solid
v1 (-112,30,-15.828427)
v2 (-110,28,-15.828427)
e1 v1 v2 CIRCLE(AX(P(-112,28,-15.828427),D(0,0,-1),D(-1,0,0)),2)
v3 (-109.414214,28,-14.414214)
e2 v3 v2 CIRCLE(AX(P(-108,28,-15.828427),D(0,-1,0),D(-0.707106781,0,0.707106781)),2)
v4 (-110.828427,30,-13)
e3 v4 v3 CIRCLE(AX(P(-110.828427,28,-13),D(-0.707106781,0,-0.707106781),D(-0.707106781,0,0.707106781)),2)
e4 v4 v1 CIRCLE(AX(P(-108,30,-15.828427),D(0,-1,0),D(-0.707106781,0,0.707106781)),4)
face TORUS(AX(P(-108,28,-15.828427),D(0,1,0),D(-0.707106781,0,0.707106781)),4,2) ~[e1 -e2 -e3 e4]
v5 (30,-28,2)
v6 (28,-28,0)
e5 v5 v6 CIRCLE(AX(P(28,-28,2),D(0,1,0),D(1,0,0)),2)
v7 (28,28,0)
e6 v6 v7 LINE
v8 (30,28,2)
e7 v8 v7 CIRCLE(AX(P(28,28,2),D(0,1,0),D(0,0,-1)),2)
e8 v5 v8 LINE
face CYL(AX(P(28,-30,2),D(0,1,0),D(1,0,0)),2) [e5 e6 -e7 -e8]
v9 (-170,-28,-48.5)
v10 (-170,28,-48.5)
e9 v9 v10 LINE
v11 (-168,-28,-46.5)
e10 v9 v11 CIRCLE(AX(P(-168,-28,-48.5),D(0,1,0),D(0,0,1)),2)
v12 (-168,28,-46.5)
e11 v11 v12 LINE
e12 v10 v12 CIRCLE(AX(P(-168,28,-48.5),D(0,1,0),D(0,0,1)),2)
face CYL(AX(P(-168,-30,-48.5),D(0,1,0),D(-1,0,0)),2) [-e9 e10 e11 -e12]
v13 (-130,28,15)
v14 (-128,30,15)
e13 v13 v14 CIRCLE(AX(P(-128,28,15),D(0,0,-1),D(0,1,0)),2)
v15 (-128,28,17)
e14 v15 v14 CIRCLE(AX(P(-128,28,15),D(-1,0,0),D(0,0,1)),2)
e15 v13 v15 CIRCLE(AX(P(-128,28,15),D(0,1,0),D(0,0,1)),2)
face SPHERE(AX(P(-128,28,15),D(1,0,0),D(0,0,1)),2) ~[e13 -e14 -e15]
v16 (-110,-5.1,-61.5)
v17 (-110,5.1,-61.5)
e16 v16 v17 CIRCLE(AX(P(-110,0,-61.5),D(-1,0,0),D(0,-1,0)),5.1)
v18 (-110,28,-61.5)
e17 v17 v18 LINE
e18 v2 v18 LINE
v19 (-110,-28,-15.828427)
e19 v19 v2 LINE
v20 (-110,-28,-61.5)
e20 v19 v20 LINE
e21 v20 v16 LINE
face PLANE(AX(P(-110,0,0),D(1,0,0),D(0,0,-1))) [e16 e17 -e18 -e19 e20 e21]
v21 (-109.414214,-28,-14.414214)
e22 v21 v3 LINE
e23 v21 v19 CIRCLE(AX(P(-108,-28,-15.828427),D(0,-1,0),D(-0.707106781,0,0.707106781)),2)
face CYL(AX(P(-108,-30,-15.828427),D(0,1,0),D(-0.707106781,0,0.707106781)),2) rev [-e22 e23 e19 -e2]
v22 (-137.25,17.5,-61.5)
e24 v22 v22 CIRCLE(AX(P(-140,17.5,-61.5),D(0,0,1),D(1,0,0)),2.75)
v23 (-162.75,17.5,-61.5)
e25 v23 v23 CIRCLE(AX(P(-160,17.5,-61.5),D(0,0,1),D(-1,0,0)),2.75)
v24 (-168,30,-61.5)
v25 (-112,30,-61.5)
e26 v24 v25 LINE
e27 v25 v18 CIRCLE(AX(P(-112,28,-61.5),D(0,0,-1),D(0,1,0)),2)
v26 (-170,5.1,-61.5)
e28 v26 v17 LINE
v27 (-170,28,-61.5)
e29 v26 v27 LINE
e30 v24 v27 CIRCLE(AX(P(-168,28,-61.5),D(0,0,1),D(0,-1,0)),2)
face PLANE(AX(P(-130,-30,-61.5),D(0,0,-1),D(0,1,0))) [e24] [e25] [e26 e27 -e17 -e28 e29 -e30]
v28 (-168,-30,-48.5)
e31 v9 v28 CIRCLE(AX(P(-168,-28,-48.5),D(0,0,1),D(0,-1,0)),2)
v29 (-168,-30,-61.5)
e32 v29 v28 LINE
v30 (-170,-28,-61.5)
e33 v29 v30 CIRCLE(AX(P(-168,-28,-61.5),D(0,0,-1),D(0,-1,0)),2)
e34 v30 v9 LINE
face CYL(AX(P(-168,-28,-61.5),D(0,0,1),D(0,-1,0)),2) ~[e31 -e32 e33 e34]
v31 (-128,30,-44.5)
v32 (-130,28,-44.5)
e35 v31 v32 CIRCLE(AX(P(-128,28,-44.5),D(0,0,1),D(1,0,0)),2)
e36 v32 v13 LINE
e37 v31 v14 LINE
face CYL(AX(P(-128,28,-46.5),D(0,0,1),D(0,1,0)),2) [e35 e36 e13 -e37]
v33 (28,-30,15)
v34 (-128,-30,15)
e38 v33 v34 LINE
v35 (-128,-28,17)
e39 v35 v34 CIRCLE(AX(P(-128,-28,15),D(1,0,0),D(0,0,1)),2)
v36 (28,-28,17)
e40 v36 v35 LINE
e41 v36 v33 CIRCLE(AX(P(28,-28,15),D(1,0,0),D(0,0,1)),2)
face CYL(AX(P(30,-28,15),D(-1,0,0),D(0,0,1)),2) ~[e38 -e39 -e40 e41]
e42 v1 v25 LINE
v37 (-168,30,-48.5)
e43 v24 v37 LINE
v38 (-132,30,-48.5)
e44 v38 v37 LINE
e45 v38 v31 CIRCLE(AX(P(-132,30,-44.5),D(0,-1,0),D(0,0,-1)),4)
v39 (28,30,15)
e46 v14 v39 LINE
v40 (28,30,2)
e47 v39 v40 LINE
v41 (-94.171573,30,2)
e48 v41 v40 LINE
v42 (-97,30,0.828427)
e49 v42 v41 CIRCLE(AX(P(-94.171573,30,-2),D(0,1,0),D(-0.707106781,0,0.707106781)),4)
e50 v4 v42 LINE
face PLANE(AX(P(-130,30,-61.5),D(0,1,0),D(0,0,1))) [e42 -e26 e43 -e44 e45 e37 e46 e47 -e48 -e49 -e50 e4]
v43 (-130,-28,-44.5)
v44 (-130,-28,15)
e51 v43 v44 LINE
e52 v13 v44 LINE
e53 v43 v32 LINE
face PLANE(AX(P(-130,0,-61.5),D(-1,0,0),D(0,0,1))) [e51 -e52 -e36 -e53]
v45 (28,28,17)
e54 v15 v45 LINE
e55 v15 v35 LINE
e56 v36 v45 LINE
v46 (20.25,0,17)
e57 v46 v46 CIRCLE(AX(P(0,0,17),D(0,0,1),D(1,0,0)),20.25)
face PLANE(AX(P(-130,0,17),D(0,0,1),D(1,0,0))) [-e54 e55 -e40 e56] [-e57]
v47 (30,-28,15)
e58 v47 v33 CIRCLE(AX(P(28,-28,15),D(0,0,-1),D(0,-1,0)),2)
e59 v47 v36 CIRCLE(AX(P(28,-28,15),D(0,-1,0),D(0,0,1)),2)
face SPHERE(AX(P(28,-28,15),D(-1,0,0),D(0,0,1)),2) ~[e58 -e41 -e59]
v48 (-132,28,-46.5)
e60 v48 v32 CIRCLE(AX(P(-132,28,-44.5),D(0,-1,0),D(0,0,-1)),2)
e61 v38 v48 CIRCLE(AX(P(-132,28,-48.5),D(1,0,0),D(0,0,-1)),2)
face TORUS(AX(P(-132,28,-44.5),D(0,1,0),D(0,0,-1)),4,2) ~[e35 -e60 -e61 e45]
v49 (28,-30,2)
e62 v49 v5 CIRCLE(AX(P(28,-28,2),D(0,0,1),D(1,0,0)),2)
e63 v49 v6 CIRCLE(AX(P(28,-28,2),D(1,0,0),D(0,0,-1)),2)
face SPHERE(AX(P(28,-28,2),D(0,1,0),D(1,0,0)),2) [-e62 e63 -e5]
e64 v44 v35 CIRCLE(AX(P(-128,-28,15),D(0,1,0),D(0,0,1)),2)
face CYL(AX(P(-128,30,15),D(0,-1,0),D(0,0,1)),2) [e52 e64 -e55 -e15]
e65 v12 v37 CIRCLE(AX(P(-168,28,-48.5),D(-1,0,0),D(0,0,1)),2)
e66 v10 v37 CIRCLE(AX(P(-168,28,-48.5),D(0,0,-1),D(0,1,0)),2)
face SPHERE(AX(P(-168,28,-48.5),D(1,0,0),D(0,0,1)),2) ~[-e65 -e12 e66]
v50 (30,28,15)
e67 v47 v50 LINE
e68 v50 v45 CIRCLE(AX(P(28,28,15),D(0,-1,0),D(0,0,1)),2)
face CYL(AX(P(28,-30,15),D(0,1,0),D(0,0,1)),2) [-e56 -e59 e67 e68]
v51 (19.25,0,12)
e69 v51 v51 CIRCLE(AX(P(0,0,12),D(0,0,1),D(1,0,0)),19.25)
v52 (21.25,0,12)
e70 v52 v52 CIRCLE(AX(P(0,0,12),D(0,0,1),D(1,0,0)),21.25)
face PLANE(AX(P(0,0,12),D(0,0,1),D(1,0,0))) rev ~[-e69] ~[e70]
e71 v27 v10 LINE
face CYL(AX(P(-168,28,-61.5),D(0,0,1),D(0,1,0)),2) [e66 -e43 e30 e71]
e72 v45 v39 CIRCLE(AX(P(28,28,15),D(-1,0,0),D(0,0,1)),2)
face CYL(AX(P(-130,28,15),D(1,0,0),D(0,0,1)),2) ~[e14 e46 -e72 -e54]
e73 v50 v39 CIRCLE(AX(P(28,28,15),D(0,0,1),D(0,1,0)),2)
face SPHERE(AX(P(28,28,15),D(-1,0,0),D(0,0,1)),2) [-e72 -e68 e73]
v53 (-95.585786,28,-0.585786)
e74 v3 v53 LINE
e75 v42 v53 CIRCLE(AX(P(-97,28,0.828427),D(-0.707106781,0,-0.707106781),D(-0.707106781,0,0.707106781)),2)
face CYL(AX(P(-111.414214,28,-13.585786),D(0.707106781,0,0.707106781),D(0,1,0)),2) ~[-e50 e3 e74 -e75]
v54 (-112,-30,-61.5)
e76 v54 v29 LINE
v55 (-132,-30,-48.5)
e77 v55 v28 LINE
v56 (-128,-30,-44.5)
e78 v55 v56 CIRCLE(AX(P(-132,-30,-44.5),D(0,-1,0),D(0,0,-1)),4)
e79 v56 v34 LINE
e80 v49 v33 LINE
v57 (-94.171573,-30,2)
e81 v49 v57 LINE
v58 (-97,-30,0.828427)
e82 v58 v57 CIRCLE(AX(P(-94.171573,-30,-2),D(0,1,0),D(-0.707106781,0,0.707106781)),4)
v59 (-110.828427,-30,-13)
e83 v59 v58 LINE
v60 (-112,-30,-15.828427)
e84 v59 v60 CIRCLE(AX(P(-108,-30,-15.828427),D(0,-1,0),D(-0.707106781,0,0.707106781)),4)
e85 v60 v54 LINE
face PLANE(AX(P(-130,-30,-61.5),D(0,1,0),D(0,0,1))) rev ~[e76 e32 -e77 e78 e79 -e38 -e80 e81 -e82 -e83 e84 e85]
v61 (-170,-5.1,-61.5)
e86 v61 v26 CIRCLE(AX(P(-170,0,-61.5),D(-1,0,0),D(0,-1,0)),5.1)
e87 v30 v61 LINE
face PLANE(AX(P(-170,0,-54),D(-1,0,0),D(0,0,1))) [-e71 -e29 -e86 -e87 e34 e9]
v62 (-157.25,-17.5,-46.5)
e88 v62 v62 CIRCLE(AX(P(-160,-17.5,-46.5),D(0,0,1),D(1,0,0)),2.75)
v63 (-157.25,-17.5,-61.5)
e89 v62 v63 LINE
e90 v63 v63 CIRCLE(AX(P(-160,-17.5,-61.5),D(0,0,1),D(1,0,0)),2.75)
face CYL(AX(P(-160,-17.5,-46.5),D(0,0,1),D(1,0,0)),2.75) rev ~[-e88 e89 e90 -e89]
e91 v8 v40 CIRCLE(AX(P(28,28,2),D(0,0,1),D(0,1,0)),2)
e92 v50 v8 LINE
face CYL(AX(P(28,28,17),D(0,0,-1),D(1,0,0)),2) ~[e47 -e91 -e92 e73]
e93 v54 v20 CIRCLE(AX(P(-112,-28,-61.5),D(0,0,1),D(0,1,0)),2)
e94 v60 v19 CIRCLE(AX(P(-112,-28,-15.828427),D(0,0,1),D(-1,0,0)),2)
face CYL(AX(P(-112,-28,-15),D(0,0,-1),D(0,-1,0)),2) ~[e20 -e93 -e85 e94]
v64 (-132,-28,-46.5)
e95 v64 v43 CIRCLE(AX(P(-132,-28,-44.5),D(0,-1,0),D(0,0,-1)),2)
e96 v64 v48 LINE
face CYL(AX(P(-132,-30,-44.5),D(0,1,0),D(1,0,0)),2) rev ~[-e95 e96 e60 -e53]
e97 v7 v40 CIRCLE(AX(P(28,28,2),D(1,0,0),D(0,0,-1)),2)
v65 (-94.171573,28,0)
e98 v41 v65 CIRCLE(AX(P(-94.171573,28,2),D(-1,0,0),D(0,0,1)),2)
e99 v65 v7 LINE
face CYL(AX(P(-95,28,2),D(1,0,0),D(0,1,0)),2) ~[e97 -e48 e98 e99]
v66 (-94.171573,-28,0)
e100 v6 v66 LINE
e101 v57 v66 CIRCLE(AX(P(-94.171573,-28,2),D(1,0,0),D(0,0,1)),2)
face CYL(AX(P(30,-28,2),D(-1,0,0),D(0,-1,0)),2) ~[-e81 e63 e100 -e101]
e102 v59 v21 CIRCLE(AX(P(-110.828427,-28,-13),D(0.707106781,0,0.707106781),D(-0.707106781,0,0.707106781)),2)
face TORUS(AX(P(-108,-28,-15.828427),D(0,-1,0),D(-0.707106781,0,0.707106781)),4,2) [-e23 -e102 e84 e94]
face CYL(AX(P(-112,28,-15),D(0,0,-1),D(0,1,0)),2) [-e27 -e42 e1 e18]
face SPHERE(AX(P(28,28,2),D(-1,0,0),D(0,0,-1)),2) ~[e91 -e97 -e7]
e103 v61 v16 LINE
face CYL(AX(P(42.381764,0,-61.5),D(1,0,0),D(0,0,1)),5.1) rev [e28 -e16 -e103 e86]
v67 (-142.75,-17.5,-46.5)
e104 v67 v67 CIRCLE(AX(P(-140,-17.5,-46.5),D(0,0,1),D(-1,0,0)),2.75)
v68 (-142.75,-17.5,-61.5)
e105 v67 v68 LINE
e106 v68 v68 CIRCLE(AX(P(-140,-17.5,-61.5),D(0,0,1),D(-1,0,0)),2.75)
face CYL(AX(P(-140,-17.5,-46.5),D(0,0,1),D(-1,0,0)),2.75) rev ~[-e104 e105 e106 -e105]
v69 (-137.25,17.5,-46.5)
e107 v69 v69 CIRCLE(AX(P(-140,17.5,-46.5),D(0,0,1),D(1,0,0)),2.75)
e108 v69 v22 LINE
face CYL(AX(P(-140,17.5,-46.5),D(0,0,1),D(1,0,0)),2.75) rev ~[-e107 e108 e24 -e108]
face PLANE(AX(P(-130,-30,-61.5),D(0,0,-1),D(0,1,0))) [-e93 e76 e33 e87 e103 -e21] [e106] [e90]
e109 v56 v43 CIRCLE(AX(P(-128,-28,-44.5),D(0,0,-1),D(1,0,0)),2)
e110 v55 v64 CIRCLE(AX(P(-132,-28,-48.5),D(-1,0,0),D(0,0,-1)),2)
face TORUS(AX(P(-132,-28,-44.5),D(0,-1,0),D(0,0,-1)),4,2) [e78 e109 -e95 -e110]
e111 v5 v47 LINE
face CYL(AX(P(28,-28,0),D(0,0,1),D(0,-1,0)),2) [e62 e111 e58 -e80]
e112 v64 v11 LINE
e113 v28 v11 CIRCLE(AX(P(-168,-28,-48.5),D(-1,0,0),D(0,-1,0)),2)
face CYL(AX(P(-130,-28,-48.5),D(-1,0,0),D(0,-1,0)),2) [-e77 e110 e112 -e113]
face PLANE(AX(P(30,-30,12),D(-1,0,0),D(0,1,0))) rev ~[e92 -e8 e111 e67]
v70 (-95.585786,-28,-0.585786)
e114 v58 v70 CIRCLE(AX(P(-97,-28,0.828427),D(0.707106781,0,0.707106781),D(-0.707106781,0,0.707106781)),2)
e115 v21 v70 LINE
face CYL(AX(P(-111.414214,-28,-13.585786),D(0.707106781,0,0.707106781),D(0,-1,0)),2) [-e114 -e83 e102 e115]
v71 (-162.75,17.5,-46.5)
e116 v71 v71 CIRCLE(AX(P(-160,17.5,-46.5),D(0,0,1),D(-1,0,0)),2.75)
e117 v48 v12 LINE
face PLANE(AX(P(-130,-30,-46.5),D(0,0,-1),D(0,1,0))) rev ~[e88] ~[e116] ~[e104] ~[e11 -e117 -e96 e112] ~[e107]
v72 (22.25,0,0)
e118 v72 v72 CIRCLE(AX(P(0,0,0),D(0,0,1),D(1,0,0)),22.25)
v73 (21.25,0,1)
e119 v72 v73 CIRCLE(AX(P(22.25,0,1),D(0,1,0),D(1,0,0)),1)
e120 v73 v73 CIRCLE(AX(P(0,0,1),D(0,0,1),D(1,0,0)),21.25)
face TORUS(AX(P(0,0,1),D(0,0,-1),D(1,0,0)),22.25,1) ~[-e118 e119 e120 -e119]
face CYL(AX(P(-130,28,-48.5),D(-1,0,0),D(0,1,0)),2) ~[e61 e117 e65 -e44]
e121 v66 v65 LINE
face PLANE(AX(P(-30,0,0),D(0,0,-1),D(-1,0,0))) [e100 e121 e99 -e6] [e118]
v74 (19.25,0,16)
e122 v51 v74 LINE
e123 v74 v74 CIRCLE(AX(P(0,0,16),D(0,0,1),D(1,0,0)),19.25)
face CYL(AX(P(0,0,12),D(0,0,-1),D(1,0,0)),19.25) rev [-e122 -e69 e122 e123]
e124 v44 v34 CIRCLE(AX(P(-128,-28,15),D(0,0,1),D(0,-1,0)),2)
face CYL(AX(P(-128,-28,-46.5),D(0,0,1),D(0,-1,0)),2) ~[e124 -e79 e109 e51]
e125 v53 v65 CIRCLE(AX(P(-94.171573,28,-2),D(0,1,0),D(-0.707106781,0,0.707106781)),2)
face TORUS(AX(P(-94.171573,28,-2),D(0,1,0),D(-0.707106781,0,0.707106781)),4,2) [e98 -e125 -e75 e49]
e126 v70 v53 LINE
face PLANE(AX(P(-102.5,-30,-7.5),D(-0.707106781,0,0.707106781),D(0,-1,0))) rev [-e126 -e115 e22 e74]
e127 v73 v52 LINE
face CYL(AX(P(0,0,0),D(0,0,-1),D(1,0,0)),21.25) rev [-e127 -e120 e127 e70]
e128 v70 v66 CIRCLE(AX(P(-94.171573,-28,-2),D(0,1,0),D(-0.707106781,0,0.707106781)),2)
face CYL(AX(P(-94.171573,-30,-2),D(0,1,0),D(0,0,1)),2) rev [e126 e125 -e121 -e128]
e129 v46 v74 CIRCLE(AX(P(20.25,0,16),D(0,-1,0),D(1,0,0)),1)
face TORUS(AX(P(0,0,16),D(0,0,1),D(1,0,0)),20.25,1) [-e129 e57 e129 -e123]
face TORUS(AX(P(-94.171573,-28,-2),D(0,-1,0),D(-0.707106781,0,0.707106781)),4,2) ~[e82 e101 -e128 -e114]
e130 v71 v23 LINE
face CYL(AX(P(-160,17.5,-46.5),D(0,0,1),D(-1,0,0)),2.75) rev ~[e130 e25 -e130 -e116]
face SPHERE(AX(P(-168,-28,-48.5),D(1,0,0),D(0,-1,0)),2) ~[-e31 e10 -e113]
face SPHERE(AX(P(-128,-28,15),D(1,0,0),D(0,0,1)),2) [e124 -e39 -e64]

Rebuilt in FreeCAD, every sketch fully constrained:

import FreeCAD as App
import Part
import Sketcher
Q = App.Units.Quantity


def edges_at(feature, points):
    """Names of the edges that pass closest to the given points."""
    edges = feature.Shape.Edges
    near = lambda p: min(range(len(edges)), key=lambda i: edges[i].distToShape(Part.Vertex(*p))[0])
    return sorted({f"Edge{near(p) + 1}" for p in points})

doc = App.newDocument("Part")
body = doc.addObject("PartDesign::Body", "Body")

sketch1 = doc.addObject("Sketcher::SketchObject", "Sketch")
body.addObject(sketch1)
sketch1.AttachmentSupport = (doc.XY_Plane, [""])
sketch1.MapMode = "FlatFace"
sketch1.addGeometry([
    Part.LineSegment(App.Vector(-30, 30, 0), App.Vector(-30, -30, 0)),
    Part.LineSegment(App.Vector(-30, -30, 0), App.Vector(30, -30, 0)),
    Part.LineSegment(App.Vector(30, -30, 0), App.Vector(30, 30, 0)),
    Part.LineSegment(App.Vector(30, 30, 0), App.Vector(-30, 30, 0)),
    Part.Circle(App.Vector(0, 0, 0), App.Vector(0, 0, 1), 21),
], False)
sketch1.addConstraint([
    Sketcher.Constraint("Coincident", 0, 2, 1, 1),
    Sketcher.Constraint("Coincident", 1, 2, 2, 1),
    Sketcher.Constraint("Coincident", 2, 2, 3, 1),
    Sketcher.Constraint("Coincident", 3, 2, 0, 1),
    Sketcher.Constraint("Vertical", 0),
    Sketcher.Constraint("Horizontal", 1),
    Sketcher.Constraint("Vertical", 2),
    Sketcher.Constraint("Horizontal", 3),
    Sketcher.Constraint("Coincident", 4, 3, -1, 1),
    Sketcher.Constraint("Symmetric", 0, 2, 2, 2, -1, 1),
    Sketcher.Constraint("Equal", 3, 0),
    Sketcher.Constraint("Diameter", 4, Q("42.5 mm")),
    Sketcher.Constraint("DistanceX", 1, 1, 1, 2, Q("60 mm")),
])
pad1 = doc.addObject("PartDesign::Pad", "Pad")
body.addObject(pad1)
pad1.Profile = sketch1
pad1.Length = 12

sketch2 = doc.addObject("Sketcher::SketchObject", "Sketch001")
body.addObject(sketch2)
sketch2.AttachmentSupport = (doc.XY_Plane, [""])
sketch2.MapMode = "FlatFace"
sketch2.AttachmentOffset = App.Placement(App.Vector(0, 0, 12), App.Rotation())
sketch2.addGeometry([
    Part.LineSegment(App.Vector(-30, 30, 0), App.Vector(-30, -30, 0)),
    Part.LineSegment(App.Vector(-30, -30, 0), App.Vector(30, -30, 0)),
    Part.LineSegment(App.Vector(30, -30, 0), App.Vector(30, 30, 0)),
    Part.LineSegment(App.Vector(30, 30, 0), App.Vector(-30, 30, 0)),
    Part.Circle(App.Vector(0, 0, 0), App.Vector(0, 0, 1), 19),
], False)
sketch2.addConstraint([
    Sketcher.Constraint("Coincident", 0, 2, 1, 1),
    Sketcher.Constraint("Coincident", 1, 2, 2, 1),
    Sketcher.Constraint("Coincident", 2, 2, 3, 1),
    Sketcher.Constraint("Coincident", 3, 2, 0, 1),
    Sketcher.Constraint("Vertical", 0),
    Sketcher.Constraint("Horizontal", 1),
    Sketcher.Constraint("Vertical", 2),
    Sketcher.Constraint("Horizontal", 3),
    Sketcher.Constraint("Coincident", 4, 3, -1, 1),
    Sketcher.Constraint("Symmetric", 0, 2, 2, 2, -1, 1),
    Sketcher.Constraint("Equal", 3, 0),
    Sketcher.Constraint("Diameter", 4, Q("38.5 mm")),
    Sketcher.Constraint("DistanceX", 1, 1, 1, 2, Q("60 mm")),
])
pad2 = doc.addObject("PartDesign::Pad", "Pad001")
body.addObject(pad2)
pad2.Profile = sketch2
pad2.Length = 5

sketch3 = doc.addObject("Sketcher::SketchObject", "Sketch002")
body.addObject(sketch3)
sketch3.AttachmentSupport = (doc.XZ_Plane, [""])
sketch3.MapMode = "FlatFace"
sketch3.addGeometry([
    Part.LineSegment(App.Vector(-30, 0, 0), App.Vector(-110, 0, 0)),
    Part.LineSegment(App.Vector(-110, 0, 0), App.Vector(-110, -62, 0)),
    Part.LineSegment(App.Vector(-110, -62, 0), App.Vector(-130, -62, 0)),
    Part.LineSegment(App.Vector(-130, -62, 0), App.Vector(-130, 17, 0)),
    Part.LineSegment(App.Vector(-130, 17, 0), App.Vector(-30, 17, 0)),
    Part.LineSegment(App.Vector(-30, 17, 0), App.Vector(-30, 0, 0)),
], False)
sketch3.addConstraint([
    Sketcher.Constraint("Coincident", 0, 2, 1, 1),
    Sketcher.Constraint("Coincident", 1, 2, 2, 1),
    Sketcher.Constraint("Coincident", 2, 2, 3, 1),
    Sketcher.Constraint("Coincident", 3, 2, 4, 1),
    Sketcher.Constraint("Coincident", 4, 2, 5, 1),
    Sketcher.Constraint("Coincident", 5, 2, 0, 1),
    Sketcher.Constraint("Horizontal", 0),
    Sketcher.Constraint("Vertical", 1),
    Sketcher.Constraint("Horizontal", 2),
    Sketcher.Constraint("Vertical", 3),
    Sketcher.Constraint("Horizontal", 4),
    Sketcher.Constraint("Vertical", 5),
    Sketcher.Constraint("PointOnObject", 0, 2, -1),
    Sketcher.Constraint("DistanceX", 0, 2, 0, 1, Q("80 mm")),
    Sketcher.Constraint("DistanceX", 2, 2, 2, 1, Q("20 mm")),
    Sketcher.Constraint("DistanceY", 5, 2, 5, 1, Q("17 mm")),
    Sketcher.Constraint("DistanceY", 1, 2, 1, 1, Q("61.5 mm")),
    Sketcher.Constraint("DistanceX", 0, 2, -1, 1, Q("110 mm")),
])
pad3 = doc.addObject("PartDesign::Pad", "Pad002")
body.addObject(pad3)
pad3.Profile = sketch3
pad3.Length = 60
pad3.Midplane = True

sketch4 = doc.addObject("Sketcher::SketchObject", "Sketch003")
body.addObject(sketch4)
sketch4.AttachmentSupport = (doc.YZ_Plane, [""])
sketch4.MapMode = "FlatFace"
sketch4.AttachmentOffset = App.Placement(App.Vector(0, 0, -130), App.Rotation())
sketch4.addGeometry([
    Part.LineSegment(App.Vector(30, -62, 0), App.Vector(-30, -62, 0)),
    Part.LineSegment(App.Vector(-30, -62, 0), App.Vector(-30, -46, 0)),
    Part.LineSegment(App.Vector(-30, -46, 0), App.Vector(30, -46, 0)),
    Part.LineSegment(App.Vector(30, -46, 0), App.Vector(30, -62, 0)),
], False)
sketch4.addConstraint([
    Sketcher.Constraint("Coincident", 0, 2, 1, 1),
    Sketcher.Constraint("Coincident", 1, 2, 2, 1),
    Sketcher.Constraint("Coincident", 2, 2, 3, 1),
    Sketcher.Constraint("Coincident", 3, 2, 0, 1),
    Sketcher.Constraint("Horizontal", 0),
    Sketcher.Constraint("Vertical", 1),
    Sketcher.Constraint("Horizontal", 2),
    Sketcher.Constraint("Vertical", 3),
    Sketcher.Constraint("DistanceX", 0, 2, 0, 1, Q("60 mm")),
    Sketcher.Constraint("DistanceY", 1, 1, 1, 2, Q("15 mm")),
    Sketcher.Constraint("DistanceX", 0, 2, -1, 1, Q("30 mm")),
    Sketcher.Constraint("DistanceY", 0, 2, -1, 1, Q("61.5 mm")),
])
pad4 = doc.addObject("PartDesign::Pad", "Pad003")
body.addObject(pad4)
pad4.Profile = sketch4
pad4.Length = 40
pad4.Reversed = True

sketch5 = doc.addObject("Sketcher::SketchObject", "Sketch004")
body.addObject(sketch5)
sketch5.AttachmentSupport = (doc.YZ_Plane, [""])
sketch5.MapMode = "FlatFace"
sketch5.AttachmentOffset = App.Placement(App.Vector(0, 0, -170), App.Rotation())
sketch5.addGeometry(Part.Circle(App.Vector(0, -62, 0), App.Vector(0, 0, 1), 5), False)
sketch5.addConstraint([
    Sketcher.Constraint("PointOnObject", 0, 3, -2),
    Sketcher.Constraint("Diameter", 0, Q("10.2 mm")),
    Sketcher.Constraint("DistanceY", 0, 3, -1, 1, Q("61.5 mm")),
])
pocket1 = doc.addObject("PartDesign::Pocket", "Pocket")
body.addObject(pocket1)
pocket1.Profile = sketch5
pocket1.Type = "ThroughAll"
pocket1.Midplane = True

sketch6 = doc.addObject("Sketcher::SketchObject", "Sketch005")
body.addObject(sketch6)
sketch6.AttachmentSupport = (doc.XY_Plane, [""])
sketch6.MapMode = "FlatFace"
sketch6.AttachmentOffset = App.Placement(App.Vector(0, 0, -46.5), App.Rotation())
sketch6.addGeometry([
    Part.Circle(App.Vector(-140, 17.5, 0), App.Vector(0, 0, 1), 2.8),
    Part.Circle(App.Vector(-140, -17.5, 0), App.Vector(0, 0, 1), 2.8),
    Part.Circle(App.Vector(-160, -17.5, 0), App.Vector(0, 0, 1), 2.8),
    Part.Circle(App.Vector(-160, 17.5, 0), App.Vector(0, 0, 1), 2.8),
], False)
sketch6.addConstraint([
    Sketcher.Constraint("Equal", 0, 1),
    Sketcher.Constraint("Equal", 1, 2),
    Sketcher.Constraint("Equal", 2, 3),
    Sketcher.Constraint("Symmetric", 0, 3, 1, 3, -1),
    Sketcher.Constraint("Symmetric", 2, 3, 3, 3, -1),
    Sketcher.Constraint("Horizontal", 1, 3, 2, 3),
    Sketcher.Constraint("Diameter", 0, Q("5.5 mm")),
    Sketcher.Constraint("DistanceX", 0, 3, -1, 1, Q("140 mm")),
    Sketcher.Constraint("DistanceX", 2, 3, -1, 1, Q("160 mm")),
    Sketcher.Constraint("DistanceY", 1, 3, 0, 3, Q("35 mm")),
])
pocket2 = doc.addObject("PartDesign::Pocket", "Pocket001")
body.addObject(pocket2)
pocket2.Profile = sketch6
pocket2.Type = "ThroughAll"
doc.recompute()

chamfer = doc.addObject("PartDesign::Chamfer", "Chamfer")
body.addObject(chamfer)
chamfer.Base = (pocket2, edges_at(pocket2, [(-110, 0, 0)]))
chamfer.Size = 15
doc.recompute()

fillet = doc.addObject("PartDesign::Fillet", "Fillet")
body.addObject(fillet)
fillet.Base = (chamfer, edges_at(chamfer, [(-21.25, 0, 0)]))
fillet.Radius = 1
doc.recompute()

fillet2 = doc.addObject("PartDesign::Fillet", "Fillet001")
body.addObject(fillet2)
fillet2.Base = (fillet, edges_at(fillet, [(-19.25, 0, 17)]))
fillet2.Radius = 1
doc.recompute()

fillet3 = doc.addObject("PartDesign::Fillet", "Fillet002")
body.addObject(fillet3)
fillet3.Base = (fillet2, edges_at(fillet2, [
    (-50, 30, 17),
    (-50, -30, 17),
    (30, 0, 17),
    (-130, 0, 17),
    (-130, -30, -14.75),
    (-130, 30, -14.75),
    (-130, 0, -46.5),
    (-150, -30, -46.5),
    (-150, 30, -46.5),
    (-170, -30, -54),
    (-170, 0, -46.5),
    (-170, 30, -54),
    (-32.5, 30, 0),
    (30, 0, 0),
    (30, -30, 8.5),
    (30, 30, 8.5),
    (-110, 30, -38.25),
    (-110, -30, -38.25),
    (-110, 0, -15),
    (-32.5, -30, 0),
    (-95, 0, 0),
    (-102.5, -30, -7.5),
    (-102.5, 30, -7.5),
]))
fillet3.Radius = 2

doc.recompute()
